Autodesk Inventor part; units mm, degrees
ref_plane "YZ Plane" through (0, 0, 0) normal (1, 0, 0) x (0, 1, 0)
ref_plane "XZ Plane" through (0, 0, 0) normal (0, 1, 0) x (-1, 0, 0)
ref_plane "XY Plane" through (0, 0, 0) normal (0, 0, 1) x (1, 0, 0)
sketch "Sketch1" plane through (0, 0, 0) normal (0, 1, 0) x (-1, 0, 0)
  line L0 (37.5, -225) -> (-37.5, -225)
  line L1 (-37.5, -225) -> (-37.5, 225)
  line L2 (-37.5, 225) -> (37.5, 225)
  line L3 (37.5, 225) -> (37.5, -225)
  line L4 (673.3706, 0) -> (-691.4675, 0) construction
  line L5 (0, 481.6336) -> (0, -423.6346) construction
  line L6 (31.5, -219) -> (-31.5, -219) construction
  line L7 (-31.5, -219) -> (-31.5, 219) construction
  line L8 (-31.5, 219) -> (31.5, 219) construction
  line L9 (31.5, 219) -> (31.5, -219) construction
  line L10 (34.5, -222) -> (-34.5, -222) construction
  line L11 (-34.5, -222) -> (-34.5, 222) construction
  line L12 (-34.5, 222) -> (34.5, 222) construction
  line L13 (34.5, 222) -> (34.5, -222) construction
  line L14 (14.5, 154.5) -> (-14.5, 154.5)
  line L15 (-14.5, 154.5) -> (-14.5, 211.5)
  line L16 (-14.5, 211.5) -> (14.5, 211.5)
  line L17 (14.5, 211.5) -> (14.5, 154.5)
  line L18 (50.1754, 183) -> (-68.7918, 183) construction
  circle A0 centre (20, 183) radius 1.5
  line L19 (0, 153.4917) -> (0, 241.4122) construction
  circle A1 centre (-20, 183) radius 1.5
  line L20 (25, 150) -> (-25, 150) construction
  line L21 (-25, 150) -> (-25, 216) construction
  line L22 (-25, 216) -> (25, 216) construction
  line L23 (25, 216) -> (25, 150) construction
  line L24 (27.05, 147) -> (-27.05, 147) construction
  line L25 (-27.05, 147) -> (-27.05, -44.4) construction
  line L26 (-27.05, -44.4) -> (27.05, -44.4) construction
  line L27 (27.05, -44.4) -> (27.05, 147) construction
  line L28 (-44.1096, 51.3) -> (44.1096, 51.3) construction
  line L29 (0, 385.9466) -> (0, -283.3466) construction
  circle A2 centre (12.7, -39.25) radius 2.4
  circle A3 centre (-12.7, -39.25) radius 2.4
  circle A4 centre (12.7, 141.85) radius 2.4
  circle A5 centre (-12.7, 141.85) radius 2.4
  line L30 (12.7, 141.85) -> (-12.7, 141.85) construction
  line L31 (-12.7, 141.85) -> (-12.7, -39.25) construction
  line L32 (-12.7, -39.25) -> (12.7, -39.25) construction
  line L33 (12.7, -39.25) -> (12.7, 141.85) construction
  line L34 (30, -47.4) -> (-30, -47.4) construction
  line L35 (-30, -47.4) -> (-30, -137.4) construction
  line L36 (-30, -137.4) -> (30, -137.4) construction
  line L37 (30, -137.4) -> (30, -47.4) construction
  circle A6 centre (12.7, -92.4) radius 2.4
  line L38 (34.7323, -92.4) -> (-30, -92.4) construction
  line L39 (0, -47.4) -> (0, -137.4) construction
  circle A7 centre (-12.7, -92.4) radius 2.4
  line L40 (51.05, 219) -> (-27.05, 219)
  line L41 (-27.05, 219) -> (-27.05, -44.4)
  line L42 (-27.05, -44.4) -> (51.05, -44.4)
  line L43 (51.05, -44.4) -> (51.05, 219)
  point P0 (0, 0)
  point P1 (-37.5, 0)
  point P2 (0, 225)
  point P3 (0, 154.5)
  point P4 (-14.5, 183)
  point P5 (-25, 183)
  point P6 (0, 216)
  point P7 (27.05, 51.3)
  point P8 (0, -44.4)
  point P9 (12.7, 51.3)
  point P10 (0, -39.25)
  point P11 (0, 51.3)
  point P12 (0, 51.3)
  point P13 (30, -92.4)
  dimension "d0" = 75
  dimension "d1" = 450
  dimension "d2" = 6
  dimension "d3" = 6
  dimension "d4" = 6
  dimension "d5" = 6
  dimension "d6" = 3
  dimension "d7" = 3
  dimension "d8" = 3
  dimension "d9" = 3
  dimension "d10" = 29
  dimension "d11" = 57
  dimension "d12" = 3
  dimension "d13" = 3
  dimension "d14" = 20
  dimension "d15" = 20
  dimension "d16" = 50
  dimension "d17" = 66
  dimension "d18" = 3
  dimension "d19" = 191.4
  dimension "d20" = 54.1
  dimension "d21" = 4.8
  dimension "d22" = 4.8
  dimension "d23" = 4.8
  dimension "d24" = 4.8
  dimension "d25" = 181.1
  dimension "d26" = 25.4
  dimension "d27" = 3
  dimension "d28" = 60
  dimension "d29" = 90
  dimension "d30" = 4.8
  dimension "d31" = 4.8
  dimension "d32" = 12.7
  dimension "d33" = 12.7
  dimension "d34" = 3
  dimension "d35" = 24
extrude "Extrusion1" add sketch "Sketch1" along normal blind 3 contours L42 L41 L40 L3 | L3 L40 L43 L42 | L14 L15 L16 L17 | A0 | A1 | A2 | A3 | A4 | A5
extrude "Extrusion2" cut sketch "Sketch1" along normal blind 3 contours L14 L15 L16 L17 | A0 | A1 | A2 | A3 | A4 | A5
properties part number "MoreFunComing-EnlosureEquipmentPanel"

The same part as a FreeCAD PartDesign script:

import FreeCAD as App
import Part
import Sketcher
from FreeCAD import Vector
Q = App.Units.Quantity

doc = App.newDocument("Part")
body = doc.addObject("PartDesign::Body", "Body")

sketch1 = body.newObject("Sketcher::SketchObject", "Sketch")
sketch1.AttachmentSupport = (doc.getObject("XZ_Plane"), [""])
sketch1.MapMode = "FlatFace"
sketch1.addGeometry([
    Part.LineSegment(Vector(27, -44, 0), Vector(-51, -44, 0)),
    Part.LineSegment(Vector(-51, -44, 0), Vector(-51, 219, 0)),
    Part.LineSegment(Vector(-51, 219, 0), Vector(27, 219, 0)),
    Part.LineSegment(Vector(27, 219, 0), Vector(27, -44, 0)),
], False)
sketch1.addConstraint([
    Sketcher.Constraint("Coincident", 0, 2, 1, 1),
    Sketcher.Constraint("Coincident", 1, 2, 2, 1),
    Sketcher.Constraint("Coincident", 2, 2, 3, 1),
    Sketcher.Constraint("Coincident", 3, 2, 0, 1),
    Sketcher.Constraint("Horizontal", 0),
    Sketcher.Constraint("Vertical", 1),
    Sketcher.Constraint("Horizontal", 2),
    Sketcher.Constraint("Vertical", 3),
    Sketcher.Constraint("DistanceX", 0, 2, 0, 1, Q("78.1 mm")),
    Sketcher.Constraint("DistanceY", 1, 1, 1, 2, Q("263.4 mm")),
    Sketcher.Constraint("DistanceY", -1, 1, 1, 2, Q("219 mm")),
    Sketcher.Constraint("DistanceX", 0, 2, -1, 1, Q("51.05 mm")),
])
pad1 = body.newObject("PartDesign::Pad", "Pad")
pad1.Profile = sketch1
pad1.Length = 3
pad1.Reversed = True

sketch2 = body.newObject("Sketcher::SketchObject", "Sketch001")
sketch2.AttachmentSupport = (doc.getObject("XZ_Plane"), [""])
sketch2.MapMode = "FlatFace"
sketch2.addGeometry([
    Part.LineSegment(Vector(14.5, 154.5, 0), Vector(-14.5, 154.5, 0)),
    Part.LineSegment(Vector(-14.5, 154.5, 0), Vector(-14.5, 211.5, 0)),
    Part.LineSegment(Vector(-14.5, 211.5, 0), Vector(14.5, 211.5, 0)),
    Part.LineSegment(Vector(14.5, 211.5, 0), Vector(14.5, 154.5, 0)),
    Part.Circle(Vector(-20, 183, 0), Vector(0, 0, 1), 1.5),
    Part.Circle(Vector(20, 183, 0), Vector(0, 0, 1), 1.5),
    Part.Circle(Vector(-12.7, -39.2, 0), Vector(0, 0, 1), 2.4),
    Part.Circle(Vector(12.7, -39.2, 0), Vector(0, 0, 1), 2.4),
    Part.Circle(Vector(-12.7, 141.8, 0), Vector(0, 0, 1), 2.4),
    Part.Circle(Vector(12.7, 141.8, 0), Vector(0, 0, 1), 2.4),
], False)
sketch2.addConstraint([
    Sketcher.Constraint("Coincident", 0, 2, 1, 1),
    Sketcher.Constraint("Coincident", 1, 2, 2, 1),
    Sketcher.Constraint("Coincident", 2, 2, 3, 1),
    Sketcher.Constraint("Coincident", 3, 2, 0, 1),
    Sketcher.Constraint("Horizontal", 0),
    Sketcher.Constraint("Vertical", 1),
    Sketcher.Constraint("Horizontal", 2),
    Sketcher.Constraint("Vertical", 3),
    Sketcher.Constraint("Equal", 4, 5),
    Sketcher.Constraint("Equal", 6, 7),
    Sketcher.Constraint("Equal", 7, 8),
    Sketcher.Constraint("Equal", 8, 9),
    Sketcher.Constraint("Symmetric", 4, 3, 5, 3, -2),
    Sketcher.Constraint("Symmetric", 6, 3, 7, 3, -2),
    Sketcher.Constraint("Symmetric", 8, 3, 9, 3, -2),
    Sketcher.Constraint("Vertical", 6, 3, 8, 3),
    Sketcher.Constraint("Diameter", 4, Q("3 mm")),
    Sketcher.Constraint("Diameter", 6, Q("4.8 mm")),
    Sketcher.Constraint("DistanceX", 0, 2, 0, 1, Q("29 mm")),
    Sketcher.Constraint("DistanceY", 1, 1, 1, 2, Q("57 mm")),
    Sketcher.Constraint("DistanceX", 4, 3, -1, 1, Q("20 mm")),
    Sketcher.Constraint("DistanceX", 6, 3, -1, 1, Q("12.7 mm")),
    Sketcher.Constraint("DistanceY", 6, 3, 8, 3, Q("181.1 mm")),
    Sketcher.Constraint("DistanceY", -1, 1, 4, 3, Q("183 mm")),
    Sketcher.Constraint("DistanceX", 0, 2, -1, 1, Q("14.5 mm")),
    Sketcher.Constraint("DistanceY", -1, 1, 0, 2, Q("154.5 mm")),
    Sketcher.Constraint("DistanceY", 6, 3, -1, 1, Q("39.25 mm")),
])
pocket1 = body.newObject("PartDesign::Pocket", "Pocket")
pocket1.Profile = sketch2
pocket1.Length = 3

doc.recompute()
